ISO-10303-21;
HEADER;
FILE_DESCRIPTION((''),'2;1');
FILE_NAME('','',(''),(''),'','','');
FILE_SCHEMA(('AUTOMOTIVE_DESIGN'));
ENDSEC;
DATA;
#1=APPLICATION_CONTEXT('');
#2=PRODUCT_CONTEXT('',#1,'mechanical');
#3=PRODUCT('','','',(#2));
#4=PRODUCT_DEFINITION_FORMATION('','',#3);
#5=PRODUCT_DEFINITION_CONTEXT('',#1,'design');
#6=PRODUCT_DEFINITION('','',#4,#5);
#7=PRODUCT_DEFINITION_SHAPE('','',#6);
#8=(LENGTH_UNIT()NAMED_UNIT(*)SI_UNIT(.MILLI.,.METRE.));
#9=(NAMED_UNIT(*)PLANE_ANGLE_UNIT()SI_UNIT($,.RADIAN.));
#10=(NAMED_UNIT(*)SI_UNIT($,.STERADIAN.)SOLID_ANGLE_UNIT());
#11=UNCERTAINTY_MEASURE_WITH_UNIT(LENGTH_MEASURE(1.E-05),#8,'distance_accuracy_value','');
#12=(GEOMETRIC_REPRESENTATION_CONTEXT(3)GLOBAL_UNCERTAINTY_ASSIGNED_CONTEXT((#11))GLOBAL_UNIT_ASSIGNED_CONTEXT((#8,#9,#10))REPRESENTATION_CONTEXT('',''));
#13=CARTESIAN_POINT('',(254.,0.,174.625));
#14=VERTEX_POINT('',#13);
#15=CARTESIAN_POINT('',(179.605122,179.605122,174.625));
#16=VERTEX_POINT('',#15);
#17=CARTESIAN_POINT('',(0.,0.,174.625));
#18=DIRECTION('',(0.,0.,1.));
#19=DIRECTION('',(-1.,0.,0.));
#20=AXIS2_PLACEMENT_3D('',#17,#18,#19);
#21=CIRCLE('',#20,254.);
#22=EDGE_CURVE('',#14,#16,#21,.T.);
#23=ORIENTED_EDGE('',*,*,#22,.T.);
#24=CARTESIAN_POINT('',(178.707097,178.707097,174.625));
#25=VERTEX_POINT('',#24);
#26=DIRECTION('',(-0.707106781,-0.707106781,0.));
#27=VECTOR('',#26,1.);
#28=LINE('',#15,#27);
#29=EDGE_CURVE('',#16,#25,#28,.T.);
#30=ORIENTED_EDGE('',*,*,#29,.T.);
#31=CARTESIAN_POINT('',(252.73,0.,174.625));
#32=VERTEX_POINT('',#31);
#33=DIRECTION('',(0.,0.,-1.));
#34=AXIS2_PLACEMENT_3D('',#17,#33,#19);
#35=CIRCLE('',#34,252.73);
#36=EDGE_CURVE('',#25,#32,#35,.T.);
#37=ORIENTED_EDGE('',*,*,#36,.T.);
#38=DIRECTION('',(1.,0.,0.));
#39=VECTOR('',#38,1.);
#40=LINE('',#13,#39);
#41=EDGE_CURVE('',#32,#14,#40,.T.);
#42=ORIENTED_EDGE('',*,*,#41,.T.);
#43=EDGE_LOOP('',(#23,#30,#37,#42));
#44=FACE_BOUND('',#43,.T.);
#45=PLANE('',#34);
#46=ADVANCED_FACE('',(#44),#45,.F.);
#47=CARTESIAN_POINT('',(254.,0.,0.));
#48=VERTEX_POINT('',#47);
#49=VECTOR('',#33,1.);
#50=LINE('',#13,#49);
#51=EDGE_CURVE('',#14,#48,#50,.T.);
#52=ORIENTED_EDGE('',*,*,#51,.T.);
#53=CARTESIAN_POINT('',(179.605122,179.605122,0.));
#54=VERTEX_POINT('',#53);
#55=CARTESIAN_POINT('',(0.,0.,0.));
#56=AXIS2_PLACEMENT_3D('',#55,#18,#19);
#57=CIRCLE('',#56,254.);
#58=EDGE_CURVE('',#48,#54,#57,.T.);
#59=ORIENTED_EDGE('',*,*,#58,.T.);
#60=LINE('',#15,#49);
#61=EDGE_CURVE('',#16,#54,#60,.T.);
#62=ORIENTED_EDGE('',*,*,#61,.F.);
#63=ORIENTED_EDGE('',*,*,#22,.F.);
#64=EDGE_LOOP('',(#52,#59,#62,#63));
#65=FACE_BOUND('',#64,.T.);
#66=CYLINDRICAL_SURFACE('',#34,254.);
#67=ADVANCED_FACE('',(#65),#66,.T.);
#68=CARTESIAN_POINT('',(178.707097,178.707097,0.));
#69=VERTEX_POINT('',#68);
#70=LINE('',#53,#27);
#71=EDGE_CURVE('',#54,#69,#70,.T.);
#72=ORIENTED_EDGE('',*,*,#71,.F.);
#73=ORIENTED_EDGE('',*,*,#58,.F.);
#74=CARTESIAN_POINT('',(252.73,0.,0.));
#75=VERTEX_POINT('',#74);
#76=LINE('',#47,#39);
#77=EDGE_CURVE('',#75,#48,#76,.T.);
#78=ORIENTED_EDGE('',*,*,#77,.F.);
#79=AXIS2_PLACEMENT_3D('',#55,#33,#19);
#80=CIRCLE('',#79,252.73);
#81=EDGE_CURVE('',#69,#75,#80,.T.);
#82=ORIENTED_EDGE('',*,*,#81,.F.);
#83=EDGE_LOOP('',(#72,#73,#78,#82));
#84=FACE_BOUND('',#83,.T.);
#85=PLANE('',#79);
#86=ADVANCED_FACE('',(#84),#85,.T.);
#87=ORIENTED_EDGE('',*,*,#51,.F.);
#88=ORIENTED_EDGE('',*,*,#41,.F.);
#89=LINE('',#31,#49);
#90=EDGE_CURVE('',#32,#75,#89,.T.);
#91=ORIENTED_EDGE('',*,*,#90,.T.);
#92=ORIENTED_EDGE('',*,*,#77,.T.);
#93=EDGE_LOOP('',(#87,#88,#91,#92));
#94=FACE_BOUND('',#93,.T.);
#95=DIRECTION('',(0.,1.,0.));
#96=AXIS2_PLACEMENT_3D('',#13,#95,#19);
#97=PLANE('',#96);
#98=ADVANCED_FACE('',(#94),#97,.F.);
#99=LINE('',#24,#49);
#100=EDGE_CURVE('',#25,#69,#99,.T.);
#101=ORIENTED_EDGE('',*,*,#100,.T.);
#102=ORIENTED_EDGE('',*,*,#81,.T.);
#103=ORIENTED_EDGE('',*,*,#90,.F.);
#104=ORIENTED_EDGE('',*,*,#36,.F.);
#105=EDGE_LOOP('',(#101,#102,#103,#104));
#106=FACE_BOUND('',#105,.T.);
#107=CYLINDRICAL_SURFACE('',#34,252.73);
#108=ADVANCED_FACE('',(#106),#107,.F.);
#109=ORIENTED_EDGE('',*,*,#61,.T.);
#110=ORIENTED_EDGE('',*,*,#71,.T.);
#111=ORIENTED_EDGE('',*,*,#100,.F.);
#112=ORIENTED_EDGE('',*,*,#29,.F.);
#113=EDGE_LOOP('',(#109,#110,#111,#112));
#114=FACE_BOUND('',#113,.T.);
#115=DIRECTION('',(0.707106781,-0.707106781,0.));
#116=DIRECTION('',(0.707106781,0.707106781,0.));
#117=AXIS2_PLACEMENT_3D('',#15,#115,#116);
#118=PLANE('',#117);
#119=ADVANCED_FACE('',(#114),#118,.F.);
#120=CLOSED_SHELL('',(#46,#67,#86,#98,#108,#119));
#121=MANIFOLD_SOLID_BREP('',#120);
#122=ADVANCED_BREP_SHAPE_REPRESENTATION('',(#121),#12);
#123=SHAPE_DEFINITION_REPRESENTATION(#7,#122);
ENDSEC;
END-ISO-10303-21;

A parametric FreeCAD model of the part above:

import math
import FreeCAD as App
import Part
import Sketcher
Q = App.Units.Quantity

doc = App.newDocument("Part")
body = doc.addObject("PartDesign::Body", "Body")

# Sketch on XY plane
sketch1 = body.newObject("Sketcher::SketchObject", "Sketch")
sketch1.AttachmentSupport = (doc.getObject("XY_Plane"), [""])
sketch1.MapMode = "FlatFace"
sketch1.addGeometry(Part.LineSegment(App.Vector(179.6, 179.6, 0), App.Vector(178.7, 178.7, 0)), False)
sketch1.addGeometry(Part.ArcOfCircle(Part.Circle(App.Vector(0, 0, 0), App.Vector(0, 0, 1), 252.7), math.radians(0), math.radians(45)), False)
sketch1.addGeometry(Part.LineSegment(App.Vector(252.7, 0, 0), App.Vector(254, 0, 0)), False)
sketch1.addGeometry(Part.ArcOfCircle(Part.Circle(App.Vector(0, 0, 0), App.Vector(0, 0, 1), 254), math.radians(0), math.radians(45)), False)
sketch1.addConstraint(Sketcher.Constraint("Coincident", 0, 2, 1, 2))
sketch1.addConstraint(Sketcher.Constraint("Coincident", 1, 1, 2, 1))
sketch1.addConstraint(Sketcher.Constraint("Coincident", 2, 2, 3, 1))
sketch1.addConstraint(Sketcher.Constraint("Coincident", 3, 2, 0, 1))
sketch1.addConstraint(Sketcher.Constraint("Horizontal", 2))
sketch1.addConstraint(Sketcher.Constraint("Coincident", 1, 3, -1, 1))
sketch1.addConstraint(Sketcher.Constraint("Coincident", 3, 3, -1, 1))
sketch1.addConstraint(Sketcher.Constraint("PointOnObject", 1, 1, -1))
sketch1.addConstraint(Sketcher.Constraint("Radius", 3, Q("10 in")))
sketch1.addConstraint(Sketcher.Constraint("Radius", 1, Q("9.95 in")))
sketch1.addConstraint(Sketcher.Constraint("Angle", 0, Q("-135 deg")))
sketch1.addConstraint(Sketcher.Constraint("DistanceX", -1, 1, 0, 2, 178.707097))
pad1 = body.newObject("PartDesign::Pad", "Pad")
pad1.Profile = sketch1
pad1.Length = Q("6.875 in")

doc.recompute()
